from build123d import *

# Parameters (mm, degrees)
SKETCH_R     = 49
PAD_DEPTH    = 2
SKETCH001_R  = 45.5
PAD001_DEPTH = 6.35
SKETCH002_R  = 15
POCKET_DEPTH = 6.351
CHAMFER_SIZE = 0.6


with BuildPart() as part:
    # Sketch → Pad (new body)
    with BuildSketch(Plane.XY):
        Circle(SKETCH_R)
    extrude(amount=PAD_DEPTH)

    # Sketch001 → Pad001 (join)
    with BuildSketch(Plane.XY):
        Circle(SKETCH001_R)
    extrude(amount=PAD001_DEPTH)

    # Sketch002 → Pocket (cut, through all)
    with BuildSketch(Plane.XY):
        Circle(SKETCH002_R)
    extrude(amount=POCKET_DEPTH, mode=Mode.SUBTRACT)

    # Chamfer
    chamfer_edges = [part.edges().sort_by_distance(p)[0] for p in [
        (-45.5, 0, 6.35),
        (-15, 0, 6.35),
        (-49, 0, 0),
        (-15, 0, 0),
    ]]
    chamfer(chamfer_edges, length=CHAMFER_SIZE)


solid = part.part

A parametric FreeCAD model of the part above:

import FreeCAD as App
import Part
import Sketcher

V = App.Vector
Q = App.Units.Quantity


def edges_at(feature, points):
    """Names of the edges that pass closest to the given points."""
    edges = feature.Shape.Edges
    near = lambda p: min(range(len(edges)), key=lambda i: edges[i].distToShape(Part.Vertex(*p))[0])
    return sorted({f"Edge{near(p) + 1}" for p in points})

doc = App.newDocument("Part")
body = doc.addObject("PartDesign::Body", "Body")

sketch1 = body.newObject("Sketcher::SketchObject", "Sketch")
sketch1.AttachmentSupport = (doc.getObject("XY_Plane"), [""])
sketch1.MapMode = "FlatFace"
sketch1.addGeometry(Part.Circle(V(0, 0, 0), V(0, 0, 1), 49), False)
sketch1.addConstraint([
    Sketcher.Constraint("Coincident", 0, 3, -1, 1),
    Sketcher.Constraint("Diameter", 0, Q("98 mm")),
])
pad1 = body.newObject("PartDesign::Pad", "Pad")
pad1.Profile = sketch1
pad1.Length = 2

sketch2 = body.newObject("Sketcher::SketchObject", "Sketch001")
sketch2.AttachmentSupport = (doc.getObject("XY_Plane"), [""])
sketch2.MapMode = "FlatFace"
sketch2.addGeometry(Part.Circle(V(0, 0, 0), V(0, 0, 1), 46), False)
sketch2.addConstraint([
    Sketcher.Constraint("Coincident", 0, 3, -1, 1),
    Sketcher.Constraint("Diameter", 0, Q("91 mm")),
])
pad2 = body.newObject("PartDesign::Pad", "Pad001")
pad2.Profile = sketch2
pad2.Length = 6.35

sketch3 = body.newObject("Sketcher::SketchObject", "Sketch002")
sketch3.AttachmentSupport = (doc.getObject("XY_Plane"), [""])
sketch3.MapMode = "FlatFace"
sketch3.addGeometry(Part.Circle(V(0, 0, 0), V(0, 0, 1), 15), False)
sketch3.addConstraint([
    Sketcher.Constraint("Coincident", 0, 3, -1, 1),
    Sketcher.Constraint("Diameter", 0, Q("30 mm")),
])
pocket1 = body.newObject("PartDesign::Pocket", "Pocket")
pocket1.Profile = sketch3
pocket1.Type = "ThroughAll"
pocket1.Reversed = True
doc.recompute()

chamfer = body.newObject("PartDesign::Chamfer", "Chamfer")
chamfer.Base = (pocket1, edges_at(pocket1, [
    (-45.5, 0, 6.35),
    (-15, 0, 6.35),
    (-49, 0, 0),
    (-15, 0, 0),
]))
chamfer.Size = 0.6

doc.recompute()
